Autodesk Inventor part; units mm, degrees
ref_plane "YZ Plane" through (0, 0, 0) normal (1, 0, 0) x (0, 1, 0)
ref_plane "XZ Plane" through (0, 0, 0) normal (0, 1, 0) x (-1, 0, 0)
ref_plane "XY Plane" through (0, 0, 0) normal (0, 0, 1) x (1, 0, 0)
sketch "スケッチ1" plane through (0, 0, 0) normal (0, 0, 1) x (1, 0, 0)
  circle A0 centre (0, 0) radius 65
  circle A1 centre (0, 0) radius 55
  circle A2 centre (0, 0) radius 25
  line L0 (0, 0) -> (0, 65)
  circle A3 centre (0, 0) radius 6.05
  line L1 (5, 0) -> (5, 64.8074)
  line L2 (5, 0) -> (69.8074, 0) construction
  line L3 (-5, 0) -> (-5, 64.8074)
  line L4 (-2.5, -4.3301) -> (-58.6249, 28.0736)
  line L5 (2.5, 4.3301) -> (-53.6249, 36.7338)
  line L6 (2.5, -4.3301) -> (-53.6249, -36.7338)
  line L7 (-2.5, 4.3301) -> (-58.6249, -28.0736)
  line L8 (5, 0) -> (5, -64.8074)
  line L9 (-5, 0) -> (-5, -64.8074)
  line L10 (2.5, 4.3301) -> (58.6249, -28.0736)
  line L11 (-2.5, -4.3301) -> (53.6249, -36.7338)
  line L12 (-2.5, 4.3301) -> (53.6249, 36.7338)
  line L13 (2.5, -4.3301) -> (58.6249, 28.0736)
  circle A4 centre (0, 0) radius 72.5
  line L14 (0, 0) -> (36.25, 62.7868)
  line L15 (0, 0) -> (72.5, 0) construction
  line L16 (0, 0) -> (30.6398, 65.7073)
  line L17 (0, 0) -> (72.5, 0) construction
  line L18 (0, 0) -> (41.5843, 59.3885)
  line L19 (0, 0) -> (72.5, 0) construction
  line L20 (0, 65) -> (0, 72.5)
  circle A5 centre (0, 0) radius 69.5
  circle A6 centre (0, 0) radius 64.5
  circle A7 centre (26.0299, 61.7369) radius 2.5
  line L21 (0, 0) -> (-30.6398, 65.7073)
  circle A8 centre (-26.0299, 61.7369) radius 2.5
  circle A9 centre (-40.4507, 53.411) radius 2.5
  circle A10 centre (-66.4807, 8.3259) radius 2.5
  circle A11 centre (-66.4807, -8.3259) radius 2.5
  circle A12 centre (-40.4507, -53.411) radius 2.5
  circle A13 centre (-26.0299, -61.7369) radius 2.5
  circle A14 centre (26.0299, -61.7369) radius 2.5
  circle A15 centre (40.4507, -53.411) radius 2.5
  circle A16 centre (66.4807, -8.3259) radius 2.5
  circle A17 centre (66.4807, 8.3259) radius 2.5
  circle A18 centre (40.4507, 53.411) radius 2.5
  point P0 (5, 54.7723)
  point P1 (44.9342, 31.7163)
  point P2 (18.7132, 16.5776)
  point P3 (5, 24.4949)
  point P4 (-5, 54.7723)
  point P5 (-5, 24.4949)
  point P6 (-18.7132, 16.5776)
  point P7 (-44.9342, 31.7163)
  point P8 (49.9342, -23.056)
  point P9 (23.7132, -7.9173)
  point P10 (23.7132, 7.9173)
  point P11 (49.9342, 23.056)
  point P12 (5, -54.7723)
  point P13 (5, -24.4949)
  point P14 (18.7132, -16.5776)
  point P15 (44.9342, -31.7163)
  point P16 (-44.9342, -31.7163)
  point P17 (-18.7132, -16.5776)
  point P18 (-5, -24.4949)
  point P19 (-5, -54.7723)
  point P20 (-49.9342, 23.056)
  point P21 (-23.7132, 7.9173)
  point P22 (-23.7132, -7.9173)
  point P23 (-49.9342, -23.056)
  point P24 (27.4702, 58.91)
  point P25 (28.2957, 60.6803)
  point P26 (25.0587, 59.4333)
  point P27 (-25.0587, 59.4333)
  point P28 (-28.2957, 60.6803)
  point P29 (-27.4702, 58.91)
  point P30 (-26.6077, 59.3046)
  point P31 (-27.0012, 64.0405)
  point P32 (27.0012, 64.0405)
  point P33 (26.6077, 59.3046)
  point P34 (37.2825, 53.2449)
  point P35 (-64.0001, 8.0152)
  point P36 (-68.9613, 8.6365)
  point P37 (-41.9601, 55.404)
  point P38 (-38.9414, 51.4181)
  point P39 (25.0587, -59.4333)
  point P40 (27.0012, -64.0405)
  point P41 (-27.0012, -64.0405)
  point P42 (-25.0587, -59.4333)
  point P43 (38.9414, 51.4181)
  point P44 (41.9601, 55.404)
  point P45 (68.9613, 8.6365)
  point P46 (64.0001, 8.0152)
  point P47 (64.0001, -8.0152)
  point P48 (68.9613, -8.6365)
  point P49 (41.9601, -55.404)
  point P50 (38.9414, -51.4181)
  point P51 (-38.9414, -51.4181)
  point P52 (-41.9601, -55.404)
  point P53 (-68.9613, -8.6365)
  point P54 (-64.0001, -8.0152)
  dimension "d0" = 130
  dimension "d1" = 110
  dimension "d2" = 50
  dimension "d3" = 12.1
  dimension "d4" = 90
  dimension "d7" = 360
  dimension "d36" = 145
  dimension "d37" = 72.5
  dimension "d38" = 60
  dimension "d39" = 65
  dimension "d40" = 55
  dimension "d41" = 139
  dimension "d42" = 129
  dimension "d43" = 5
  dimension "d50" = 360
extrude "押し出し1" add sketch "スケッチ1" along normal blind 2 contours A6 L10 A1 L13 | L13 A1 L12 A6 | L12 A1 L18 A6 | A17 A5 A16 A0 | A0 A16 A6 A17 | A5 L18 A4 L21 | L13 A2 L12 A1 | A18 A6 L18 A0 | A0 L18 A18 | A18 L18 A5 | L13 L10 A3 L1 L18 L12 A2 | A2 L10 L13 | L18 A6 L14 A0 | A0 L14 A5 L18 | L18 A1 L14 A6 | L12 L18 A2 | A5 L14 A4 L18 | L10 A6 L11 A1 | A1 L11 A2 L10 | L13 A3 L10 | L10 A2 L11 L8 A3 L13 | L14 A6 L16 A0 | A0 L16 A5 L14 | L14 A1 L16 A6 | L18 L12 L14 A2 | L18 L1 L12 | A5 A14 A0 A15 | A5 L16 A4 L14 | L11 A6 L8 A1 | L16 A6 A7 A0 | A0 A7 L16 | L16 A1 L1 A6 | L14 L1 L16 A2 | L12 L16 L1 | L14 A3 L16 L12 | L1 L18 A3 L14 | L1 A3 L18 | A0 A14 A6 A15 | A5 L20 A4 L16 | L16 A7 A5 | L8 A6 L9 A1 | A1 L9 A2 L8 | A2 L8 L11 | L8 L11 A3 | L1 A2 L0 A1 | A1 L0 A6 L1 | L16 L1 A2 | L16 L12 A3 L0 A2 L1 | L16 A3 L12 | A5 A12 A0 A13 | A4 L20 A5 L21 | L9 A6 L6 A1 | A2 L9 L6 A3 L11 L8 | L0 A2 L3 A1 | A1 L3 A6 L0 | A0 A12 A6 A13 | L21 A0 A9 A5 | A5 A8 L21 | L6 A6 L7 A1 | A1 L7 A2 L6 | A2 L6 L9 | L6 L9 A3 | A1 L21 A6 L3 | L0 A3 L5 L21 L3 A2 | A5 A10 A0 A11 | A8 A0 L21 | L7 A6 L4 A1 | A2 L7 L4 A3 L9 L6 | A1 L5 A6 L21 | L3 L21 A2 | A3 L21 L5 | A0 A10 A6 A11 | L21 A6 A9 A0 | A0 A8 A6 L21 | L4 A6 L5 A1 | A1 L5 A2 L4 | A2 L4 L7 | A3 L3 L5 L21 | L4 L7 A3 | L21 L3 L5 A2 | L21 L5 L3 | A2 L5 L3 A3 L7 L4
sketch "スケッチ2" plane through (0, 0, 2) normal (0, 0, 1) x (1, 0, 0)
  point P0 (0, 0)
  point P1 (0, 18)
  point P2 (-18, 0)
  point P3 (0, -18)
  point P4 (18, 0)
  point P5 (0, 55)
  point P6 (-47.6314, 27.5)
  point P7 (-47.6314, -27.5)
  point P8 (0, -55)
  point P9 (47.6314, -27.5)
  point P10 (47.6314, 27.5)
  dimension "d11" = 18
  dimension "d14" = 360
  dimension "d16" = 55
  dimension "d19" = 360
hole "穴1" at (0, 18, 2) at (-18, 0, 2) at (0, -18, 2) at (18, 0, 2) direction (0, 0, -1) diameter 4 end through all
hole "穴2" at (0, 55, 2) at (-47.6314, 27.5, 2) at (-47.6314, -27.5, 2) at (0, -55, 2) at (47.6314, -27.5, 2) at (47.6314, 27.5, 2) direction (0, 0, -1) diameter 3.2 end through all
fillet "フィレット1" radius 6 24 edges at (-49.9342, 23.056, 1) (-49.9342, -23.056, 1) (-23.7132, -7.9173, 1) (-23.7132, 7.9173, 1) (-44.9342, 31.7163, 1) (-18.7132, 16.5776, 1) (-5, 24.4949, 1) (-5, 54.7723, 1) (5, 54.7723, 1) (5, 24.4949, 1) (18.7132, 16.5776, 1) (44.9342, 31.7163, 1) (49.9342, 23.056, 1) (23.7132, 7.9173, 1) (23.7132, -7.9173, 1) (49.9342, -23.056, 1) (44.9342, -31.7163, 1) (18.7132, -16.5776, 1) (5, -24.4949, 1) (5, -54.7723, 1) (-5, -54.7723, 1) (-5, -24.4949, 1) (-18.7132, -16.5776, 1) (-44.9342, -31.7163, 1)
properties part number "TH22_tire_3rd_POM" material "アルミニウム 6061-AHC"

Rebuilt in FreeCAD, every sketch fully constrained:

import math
import FreeCAD as App
import Part
import Sketcher
from FreeCAD import Vector
Q = App.Units.Quantity


def edges_at(feature, points):
    """Names of the edges that pass closest to the given points."""
    edges = feature.Shape.Edges
    near = lambda p: min(range(len(edges)), key=lambda i: edges[i].distToShape(Part.Vertex(*p))[0])
    return sorted({f"Edge{near(p) + 1}" for p in points})

doc = App.newDocument("Part")
body = doc.addObject("PartDesign::Body", "Body")

sketch1 = body.newObject("Sketcher::SketchObject", "Sketch")
sketch1.AttachmentSupport = (doc.getObject("XY_Plane"), [""])
sketch1.MapMode = "FlatFace"
sketch1.addGeometry([
    Part.Circle(Vector(0, 0, 0), Vector(0, 0, 1), 72.5),
    Part.ArcOfCircle(Part.Circle(Vector(0, 0, 0), Vector(0, 0, 1), 64.5), math.radians(7), math.radians(53)),
    Part.ArcOfCircle(Part.Circle(Vector(40.5, 53.4, 0), Vector(0, 0, 1), 2.5), math.radians(53), math.radians(233)),
    Part.ArcOfCircle(Part.Circle(Vector(0, 0, 0), Vector(0, 0, 1), 69.5), math.radians(7), math.radians(53)),
    Part.ArcOfCircle(Part.Circle(Vector(66.5, 8.3, 0), Vector(0, 0, 1), 2.5), math.radians(-173), math.radians(7)),
    Part.ArcOfCircle(Part.Circle(Vector(66.5, -8.3, 0), Vector(0, 0, 1), 2.5), math.radians(-7), math.radians(173)),
    Part.ArcOfCircle(Part.Circle(Vector(0, 0, 0), Vector(0, 0, 1), 69.5), math.radians(-53), math.radians(-7)),
    Part.ArcOfCircle(Part.Circle(Vector(40.5, -53.4, 0), Vector(0, 0, 1), 2.5), math.radians(127), math.radians(307)),
    Part.ArcOfCircle(Part.Circle(Vector(0, 0, 0), Vector(0, 0, 1), 64.5), math.radians(-53), math.radians(-7)),
    Part.LineSegment(Vector(49.9, -23.1, 0), Vector(23.7, -7.9, 0)),
    Part.ArcOfCircle(Part.Circle(Vector(0, 0, 0), Vector(0, 0, 1), 25), math.radians(-18), math.radians(18)),
    Part.LineSegment(Vector(23.7, 7.9, 0), Vector(49.9, 23.1, 0)),
    Part.ArcOfCircle(Part.Circle(Vector(0, 0, 0), Vector(0, 0, 1), 55), math.radians(-25), math.radians(25)),
    Part.LineSegment(Vector(18.7, -16.6, 0), Vector(44.9, -31.7, 0)),
    Part.ArcOfCircle(Part.Circle(Vector(0, 0, 0), Vector(0, 0, 1), 55), math.radians(-85), math.radians(-35)),
    Part.LineSegment(Vector(5, -54.8, 0), Vector(5, -24.5, 0)),
    Part.ArcOfCircle(Part.Circle(Vector(0, 0, 0), Vector(0, 0, 1), 25), math.radians(-78), math.radians(-42)),
    Part.ArcOfCircle(Part.Circle(Vector(26, -61.7, 0), Vector(0, 0, 1), 2.5), math.radians(-67), math.radians(113)),
    Part.ArcOfCircle(Part.Circle(Vector(0, 0, 0), Vector(0, 0, 1), 69.5), math.radians(-113), math.radians(-67)),
    Part.ArcOfCircle(Part.Circle(Vector(-26, -61.7, 0), Vector(0, 0, 1), 2.5), math.radians(67), math.radians(247)),
    Part.ArcOfCircle(Part.Circle(Vector(0, 0, 0), Vector(0, 0, 1), 64.5), math.radians(-113), math.radians(-67)),
    Part.LineSegment(Vector(44.9, 31.7, 0), Vector(18.7, 16.6, 0)),
    Part.ArcOfCircle(Part.Circle(Vector(0, 0, 0), Vector(0, 0, 1), 25), math.radians(42), math.radians(78)),
    Part.LineSegment(Vector(5, 24.5, 0), Vector(5, 54.8, 0)),
    Part.ArcOfCircle(Part.Circle(Vector(0, 0, 0), Vector(0, 0, 1), 55), math.radians(35), math.radians(85)),
    Part.ArcOfCircle(Part.Circle(Vector(0, 0, 0), Vector(0, 0, 1), 69.5), math.radians(127), math.radians(173)),
    Part.ArcOfCircle(Part.Circle(Vector(-40.5, 53.4, 0), Vector(0, 0, 1), 2.5), math.radians(-53), math.radians(127)),
    Part.ArcOfCircle(Part.Circle(Vector(0, 0, 0), Vector(0, 0, 1), 64.5), math.radians(127), math.radians(173)),
    Part.ArcOfCircle(Part.Circle(Vector(-66.5, 8.3, 0), Vector(0, 0, 1), 2.5), math.radians(173), math.radians(353)),
    Part.ArcOfCircle(Part.Circle(Vector(0, 0, 0), Vector(0, 0, 1), 69.5), math.radians(-173), math.radians(-127)),
    Part.ArcOfCircle(Part.Circle(Vector(-66.5, -8.3, 0), Vector(0, 0, 1), 2.5), math.radians(7), math.radians(187)),
    Part.ArcOfCircle(Part.Circle(Vector(0, 0, 0), Vector(0, 0, 1), 64.5), math.radians(-173), math.radians(-127)),
    Part.ArcOfCircle(Part.Circle(Vector(-40.5, -53.4, 0), Vector(0, 0, 1), 2.5), math.radians(-127), math.radians(53)),
    Part.Circle(Vector(0, 0, 0), Vector(0, 0, 1), 6),
    Part.ArcOfCircle(Part.Circle(Vector(0, 0, 0), Vector(0, 0, 1), 69.5), math.radians(67), math.radians(113)),
    Part.ArcOfCircle(Part.Circle(Vector(26, 61.7, 0), Vector(0, 0, 1), 2.5), math.radians(-113), math.radians(67)),
    Part.ArcOfCircle(Part.Circle(Vector(0, 0, 0), Vector(0, 0, 1), 64.5), math.radians(67), math.radians(113)),
    Part.ArcOfCircle(Part.Circle(Vector(-26, 61.7, 0), Vector(0, 0, 1), 2.5), math.radians(113), math.radians(293)),
    Part.LineSegment(Vector(-5, -24.5, 0), Vector(-5, -54.8, 0)),
    Part.ArcOfCircle(Part.Circle(Vector(0, 0, 0), Vector(0, 0, 1), 55), math.radians(-145), math.radians(-95)),
    Part.LineSegment(Vector(-44.9, -31.7, 0), Vector(-18.7, -16.6, 0)),
    Part.ArcOfCircle(Part.Circle(Vector(0, 0, 0), Vector(0, 0, 1), 25), math.radians(-138), math.radians(-102)),
    Part.ArcOfCircle(Part.Circle(Vector(0, 0, 0), Vector(0, 0, 1), 55), math.radians(95), math.radians(145)),
    Part.LineSegment(Vector(-5, 54.8, 0), Vector(-5, 24.5, 0)),
    Part.ArcOfCircle(Part.Circle(Vector(0, 0, 0), Vector(0, 0, 1), 25), math.radians(102), math.radians(138)),
    Part.LineSegment(Vector(-18.7, 16.6, 0), Vector(-44.9, 31.7, 0)),
    Part.ArcOfCircle(Part.Circle(Vector(0, 0, 0), Vector(0, 0, 1), 55), math.radians(155), math.radians(205)),
    Part.LineSegment(Vector(-49.9, 23.1, 0), Vector(-23.7, 7.9, 0)),
    Part.ArcOfCircle(Part.Circle(Vector(0, 0, 0), Vector(0, 0, 1), 25), math.radians(162), math.radians(198)),
    Part.LineSegment(Vector(-23.7, -7.9, 0), Vector(-49.9, -23.1, 0)),
], False)
sketch1.addConstraint([
    Sketcher.Constraint("Tangent", 1, 2, 2, 2),
    Sketcher.Constraint("Tangent", 2, 1, 3, 2),
    Sketcher.Constraint("Tangent", 3, 1, 4, 2),
    Sketcher.Constraint("Tangent", 4, 1, 1, 1),
    Sketcher.Constraint("Tangent", 5, 1, 6, 2),
    Sketcher.Constraint("Tangent", 6, 1, 7, 2),
    Sketcher.Constraint("Tangent", 7, 1, 8, 1),
    Sketcher.Constraint("Tangent", 8, 2, 5, 2),
    Sketcher.Constraint("Coincident", 9, 2, 10, 1),
    Sketcher.Constraint("Coincident", 10, 2, 11, 1),
    Sketcher.Constraint("Coincident", 11, 2, 12, 2),
    Sketcher.Constraint("Coincident", 12, 1, 9, 1),
    Sketcher.Constraint("Coincident", 13, 2, 14, 2),
    Sketcher.Constraint("Coincident", 14, 1, 15, 1),
    Sketcher.Constraint("Coincident", 15, 2, 16, 1),
    Sketcher.Constraint("Coincident", 16, 2, 13, 1),
    Sketcher.Constraint("Tangent", 17, 1, 18, 2),
    Sketcher.Constraint("Tangent", 18, 1, 19, 2),
    Sketcher.Constraint("Tangent", 19, 1, 20, 1),
    Sketcher.Constraint("Tangent", 20, 2, 17, 2),
    Sketcher.Constraint("Coincident", 21, 2, 22, 1),
    Sketcher.Constraint("Coincident", 22, 2, 23, 1),
    Sketcher.Constraint("Coincident", 23, 2, 24, 2),
    Sketcher.Constraint("Coincident", 24, 1, 21, 1),
    Sketcher.Constraint("Tangent", 25, 1, 26, 2),
    Sketcher.Constraint("Tangent", 26, 1, 27, 1),
    Sketcher.Constraint("Tangent", 27, 2, 28, 2),
    Sketcher.Constraint("Tangent", 28, 1, 25, 2),
    Sketcher.Constraint("Tangent", 29, 1, 30, 2),
    Sketcher.Constraint("Tangent", 30, 1, 31, 1),
    Sketcher.Constraint("Tangent", 31, 2, 32, 2),
    Sketcher.Constraint("Tangent", 32, 1, 29, 2),
    Sketcher.Constraint("Tangent", 34, 1, 35, 2),
    Sketcher.Constraint("Tangent", 35, 1, 36, 1),
    Sketcher.Constraint("Tangent", 36, 2, 37, 2),
    Sketcher.Constraint("Tangent", 37, 1, 34, 2),
    Sketcher.Constraint("Coincident", 38, 2, 39, 2),
    Sketcher.Constraint("Coincident", 39, 1, 40, 1),
    Sketcher.Constraint("Coincident", 40, 2, 41, 1),
    Sketcher.Constraint("Coincident", 41, 2, 38, 1),
    Sketcher.Constraint("Coincident", 42, 1, 43, 1),
    Sketcher.Constraint("Coincident", 43, 2, 44, 1),
    Sketcher.Constraint("Coincident", 44, 2, 45, 1),
    Sketcher.Constraint("Coincident", 45, 2, 42, 2),
    Sketcher.Constraint("Coincident", 46, 1, 47, 1),
    Sketcher.Constraint("Coincident", 47, 2, 48, 1),
    Sketcher.Constraint("Coincident", 48, 2, 49, 1),
    Sketcher.Constraint("Coincident", 49, 2, 46, 2),
    Sketcher.Constraint("Vertical", 15),
    Sketcher.Constraint("Vertical", 23),
    Sketcher.Constraint("Vertical", 38),
    Sketcher.Constraint("Vertical", 43),
    Sketcher.Constraint("Coincident", 0, 3, -1, 1),
    Sketcher.Constraint("Coincident", 1, 3, -1, 1),
    Sketcher.Constraint("Coincident", 3, 3, -1, 1),
    Sketcher.Constraint("Coincident", 6, 3, -1, 1),
    Sketcher.Constraint("Coincident", 8, 3, -1, 1),
    Sketcher.Constraint("Coincident", 10, 3, -1, 1),
    Sketcher.Constraint("Coincident", 12, 3, -1, 1),
    Sketcher.Constraint("Coincident", 14, 3, -1, 1),
    Sketcher.Constraint("Coincident", 16, 3, -1, 1),
    Sketcher.Constraint("Coincident", 18, 3, -1, 1),
    Sketcher.Constraint("Coincident", 20, 3, -1, 1),
    Sketcher.Constraint("Coincident", 22, 3, -1, 1),
    Sketcher.Constraint("Coincident", 24, 3, -1, 1),
    Sketcher.Constraint("Coincident", 25, 3, -1, 1),
    Sketcher.Constraint("Coincident", 27, 3, -1, 1),
    Sketcher.Constraint("Coincident", 29, 3, -1, 1),
    Sketcher.Constraint("Coincident", 31, 3, -1, 1),
    Sketcher.Constraint("Coincident", 33, 3, -1, 1),
    Sketcher.Constraint("Coincident", 34, 3, -1, 1),
    Sketcher.Constraint("Coincident", 36, 3, -1, 1),
    Sketcher.Constraint("Coincident", 39, 3, -1, 1),
    Sketcher.Constraint("Coincident", 41, 3, -1, 1),
    Sketcher.Constraint("Coincident", 42, 3, -1, 1),
    Sketcher.Constraint("Coincident", 44, 3, -1, 1),
    Sketcher.Constraint("Coincident", 46, 3, -1, 1),
    Sketcher.Constraint("Coincident", 48, 3, -1, 1),
    Sketcher.Constraint("Equal", 4, 5),
    Sketcher.Constraint("Equal", 3, 6),
    Sketcher.Constraint("Equal", 12, 14),
    Sketcher.Constraint("Equal", 10, 16),
    Sketcher.Constraint("Equal", 7, 17),
    Sketcher.Constraint("Equal", 6, 18),
    Sketcher.Constraint("Equal", 16, 22),
    Sketcher.Constraint("Equal", 14, 24),
    Sketcher.Constraint("Equal", 18, 25),
    Sketcher.Constraint("Equal", 19, 26),
    Sketcher.Constraint("Equal", 25, 29),
    Sketcher.Constraint("Equal", 28, 30),
    Sketcher.Constraint("Equal", 29, 34),
    Sketcher.Constraint("Equal", 32, 35),
    Sketcher.Constraint("Equal", 24, 39),
    Sketcher.Constraint("Equal", 22, 41),
    Sketcher.Constraint("Equal", 39, 42),
    Sketcher.Constraint("Equal", 41, 44),
    Sketcher.Constraint("Equal", 42, 46),
    Sketcher.Constraint("Equal", 44, 48),
    Sketcher.Constraint("Parallel", 9, 13),
    Sketcher.Constraint("Parallel", 11, 21),
    Sketcher.Constraint("Parallel", 21, 40),
    Sketcher.Constraint("Parallel", 13, 45),
    Sketcher.Constraint("Parallel", 45, 47),
    Sketcher.Constraint("Parallel", 40, 49),
    Sketcher.Constraint("Horizontal", 17, 3, 19, 3),
    Sketcher.Constraint("Horizontal", 2, 3, 26, 3),
    Sketcher.Constraint("Horizontal", 4, 3, 28, 3),
    Sketcher.Constraint("Horizontal", 5, 3, 30, 3),
    Sketcher.Constraint("Horizontal", 7, 3, 32, 3),
    Sketcher.Constraint("Horizontal", 35, 3, 37, 3),
    Sketcher.Constraint("Horizontal", 14, 1, 38, 2),
    Sketcher.Constraint("Horizontal", 13, 2, 39, 1),
    Sketcher.Constraint("Horizontal", 16, 2, 40, 2),
    Sketcher.Constraint("Horizontal", 23, 2, 42, 1),
    Sketcher.Constraint("Horizontal", 21, 2, 44, 2),
    Sketcher.Constraint("Horizontal", 11, 2, 46, 1),
    Sketcher.Constraint("Horizontal", 9, 2, 48, 2),
    Sketcher.Constraint("Vertical", 4, 3, 5, 3),
    Sketcher.Constraint("Vertical", 2, 3, 7, 3),
    Sketcher.Constraint("Vertical", 17, 3, 35, 3),
    Sketcher.Constraint("Vertical", 9, 2, 10, 2),
    Sketcher.Constraint("Vertical", 16, 2, 21, 2),
    Sketcher.Constraint("Vertical", 15, 2, 22, 2),
    Sketcher.Constraint("Equal", 11, 13),
    Sketcher.Constraint("Diameter", 0, 145.0),
    Sketcher.Constraint("Radius", 10, 25.0),
    Sketcher.Constraint("Radius", 12, 55.0),
    Sketcher.Constraint("Diameter", 33, 12.1),
    Sketcher.Constraint("Radius", 1, 64.5),
    Sketcher.Constraint("Radius", 2, 2.5),
    Sketcher.Constraint("DistanceX", -1, 1, 14, 1, 5.0),
    Sketcher.Constraint("Angle", 9, Q("150 deg")),
    Sketcher.Constraint("DistanceX", -1, 1, 4, 1, 64.0),
    Sketcher.Constraint("DistanceX", -1, 1, 17, 3, 26.03),
    Sketcher.Constraint("DistanceX", -1, 1, 2, 1, 41.96),
    Sketcher.Constraint("DistanceY", -1, 1, 11, 2, 23.056),
])
pad1 = body.newObject("PartDesign::Pad", "Pad")
pad1.Profile = sketch1
pad1.Length = 2

sketch2 = body.newObject("Sketcher::SketchObject", "Sketch001")
sketch2.AttachmentSupport = (doc.getObject("XY_Plane"), [""])
sketch2.MapMode = "FlatFace"
sketch2.AttachmentOffset = App.Placement(Vector(0, 0, 2), App.Rotation())
sketch2.addGeometry([
    Part.Circle(Vector(0, 18, 0), Vector(0, 0, 1), 2),
    Part.Circle(Vector(-18, 0, 0), Vector(0, 0, 1), 2),
    Part.Circle(Vector(0, -18, 0), Vector(0, 0, 1), 2),
    Part.Circle(Vector(18, 0, 0), Vector(0, 0, 1), 2),
], False)
sketch2.addConstraint([
    Sketcher.Constraint("Equal", 0, 1),
    Sketcher.Constraint("Equal", 1, 2),
    Sketcher.Constraint("Equal", 2, 3),
    Sketcher.Constraint("Symmetric", 0, 3, 2, 3, -1, 1),
    Sketcher.Constraint("Symmetric", 1, 3, 3, 3, -1, 1),
    Sketcher.Constraint("PointOnObject", 0, 3, -2),
    Sketcher.Constraint("PointOnObject", 1, 3, -1),
    Sketcher.Constraint("Diameter", 0, 4.0),
    Sketcher.Constraint("DistanceY", -1, 1, 0, 3, 18.0),
    Sketcher.Constraint("DistanceX", 1, 3, -1, 1, 18.0),
])
doc.recompute()
hole = body.newObject("PartDesign::Hole", "Hole")
hole.Profile = sketch2
hole.ThreadType = "None"
hole.Diameter = 4
hole.DepthType = "ThroughAll"

sketch3 = body.newObject("Sketcher::SketchObject", "Sketch002")
sketch3.AttachmentSupport = (doc.getObject("XY_Plane"), [""])
sketch3.MapMode = "FlatFace"
sketch3.AttachmentOffset = App.Placement(Vector(0, 0, 2), App.Rotation())
sketch3.addGeometry([
    Part.Circle(Vector(0, 55, 0), Vector(0, 0, 1), 1.6),
    Part.Circle(Vector(-47.6, 27.5, 0), Vector(0, 0, 1), 1.6),
    Part.Circle(Vector(-47.6, -27.5, 0), Vector(0, 0, 1), 1.6),
    Part.Circle(Vector(0, -55, 0), Vector(0, 0, 1), 1.6),
    Part.Circle(Vector(47.6, -27.5, 0), Vector(0, 0, 1), 1.6),
    Part.Circle(Vector(47.6, 27.5, 0), Vector(0, 0, 1), 1.6),
], False)
sketch3.addConstraint([
    Sketcher.Constraint("Equal", 0, 1),
    Sketcher.Constraint("Equal", 1, 2),
    Sketcher.Constraint("Equal", 2, 3),
    Sketcher.Constraint("Equal", 3, 4),
    Sketcher.Constraint("Equal", 4, 5),
    Sketcher.Constraint("Symmetric", 0, 3, 3, 3, -1, 1),
    Sketcher.Constraint("Symmetric", 1, 3, 4, 3, -1, 1),
    Sketcher.Constraint("Symmetric", 2, 3, 5, 3, -1, 1),
    Sketcher.Constraint("Symmetric", 2, 3, 4, 3, -2),
    Sketcher.Constraint("PointOnObject", 0, 3, -2),
    Sketcher.Constraint("Diameter", 0, 3.2),
    Sketcher.Constraint("DistanceY", -1, 1, 0, 3, 55.0),
    Sketcher.Constraint("DistanceY", 2, 3, 1, 3, 55.0),
    Sketcher.Constraint("DistanceX", 1, 3, -1, 1, 47.6314),
])
doc.recompute()
hole2 = body.newObject("PartDesign::Hole", "Hole001")
hole2.Profile = sketch3
hole2.ThreadType = "None"
hole2.Diameter = 3.2
hole2.DepthType = "ThroughAll"
doc.recompute()

fillet = body.newObject("PartDesign::Fillet", "Fillet")
fillet.Base = (hole2, edges_at(hole2, [
    (-49.934, 23.056, 1),
    (-49.934, -23.056, 1),
    (-23.713, -7.917, 1),
    (-23.713, 7.917, 1),
    (-44.934, 31.716, 1),
    (-18.713, 16.578, 1),
    (-5, 24.495, 1),
    (-5, 54.772, 1),
    (5, 54.772, 1),
    (5, 24.495, 1),
    (18.713, 16.578, 1),
    (44.934, 31.716, 1),
    (49.934, 23.056, 1),
    (23.713, 7.917, 1),
    (23.713, -7.917, 1),
    (49.934, -23.056, 1),
    (44.934, -31.716, 1),
    (18.713, -16.578, 1),
    (5, -24.495, 1),
    (5, -54.772, 1),
    (-5, -54.772, 1),
    (-5, -24.495, 1),
    (-18.713, -16.578, 1),
    (-44.934, -31.716, 1),
]))
fillet.Radius = 6

doc.recompute()
